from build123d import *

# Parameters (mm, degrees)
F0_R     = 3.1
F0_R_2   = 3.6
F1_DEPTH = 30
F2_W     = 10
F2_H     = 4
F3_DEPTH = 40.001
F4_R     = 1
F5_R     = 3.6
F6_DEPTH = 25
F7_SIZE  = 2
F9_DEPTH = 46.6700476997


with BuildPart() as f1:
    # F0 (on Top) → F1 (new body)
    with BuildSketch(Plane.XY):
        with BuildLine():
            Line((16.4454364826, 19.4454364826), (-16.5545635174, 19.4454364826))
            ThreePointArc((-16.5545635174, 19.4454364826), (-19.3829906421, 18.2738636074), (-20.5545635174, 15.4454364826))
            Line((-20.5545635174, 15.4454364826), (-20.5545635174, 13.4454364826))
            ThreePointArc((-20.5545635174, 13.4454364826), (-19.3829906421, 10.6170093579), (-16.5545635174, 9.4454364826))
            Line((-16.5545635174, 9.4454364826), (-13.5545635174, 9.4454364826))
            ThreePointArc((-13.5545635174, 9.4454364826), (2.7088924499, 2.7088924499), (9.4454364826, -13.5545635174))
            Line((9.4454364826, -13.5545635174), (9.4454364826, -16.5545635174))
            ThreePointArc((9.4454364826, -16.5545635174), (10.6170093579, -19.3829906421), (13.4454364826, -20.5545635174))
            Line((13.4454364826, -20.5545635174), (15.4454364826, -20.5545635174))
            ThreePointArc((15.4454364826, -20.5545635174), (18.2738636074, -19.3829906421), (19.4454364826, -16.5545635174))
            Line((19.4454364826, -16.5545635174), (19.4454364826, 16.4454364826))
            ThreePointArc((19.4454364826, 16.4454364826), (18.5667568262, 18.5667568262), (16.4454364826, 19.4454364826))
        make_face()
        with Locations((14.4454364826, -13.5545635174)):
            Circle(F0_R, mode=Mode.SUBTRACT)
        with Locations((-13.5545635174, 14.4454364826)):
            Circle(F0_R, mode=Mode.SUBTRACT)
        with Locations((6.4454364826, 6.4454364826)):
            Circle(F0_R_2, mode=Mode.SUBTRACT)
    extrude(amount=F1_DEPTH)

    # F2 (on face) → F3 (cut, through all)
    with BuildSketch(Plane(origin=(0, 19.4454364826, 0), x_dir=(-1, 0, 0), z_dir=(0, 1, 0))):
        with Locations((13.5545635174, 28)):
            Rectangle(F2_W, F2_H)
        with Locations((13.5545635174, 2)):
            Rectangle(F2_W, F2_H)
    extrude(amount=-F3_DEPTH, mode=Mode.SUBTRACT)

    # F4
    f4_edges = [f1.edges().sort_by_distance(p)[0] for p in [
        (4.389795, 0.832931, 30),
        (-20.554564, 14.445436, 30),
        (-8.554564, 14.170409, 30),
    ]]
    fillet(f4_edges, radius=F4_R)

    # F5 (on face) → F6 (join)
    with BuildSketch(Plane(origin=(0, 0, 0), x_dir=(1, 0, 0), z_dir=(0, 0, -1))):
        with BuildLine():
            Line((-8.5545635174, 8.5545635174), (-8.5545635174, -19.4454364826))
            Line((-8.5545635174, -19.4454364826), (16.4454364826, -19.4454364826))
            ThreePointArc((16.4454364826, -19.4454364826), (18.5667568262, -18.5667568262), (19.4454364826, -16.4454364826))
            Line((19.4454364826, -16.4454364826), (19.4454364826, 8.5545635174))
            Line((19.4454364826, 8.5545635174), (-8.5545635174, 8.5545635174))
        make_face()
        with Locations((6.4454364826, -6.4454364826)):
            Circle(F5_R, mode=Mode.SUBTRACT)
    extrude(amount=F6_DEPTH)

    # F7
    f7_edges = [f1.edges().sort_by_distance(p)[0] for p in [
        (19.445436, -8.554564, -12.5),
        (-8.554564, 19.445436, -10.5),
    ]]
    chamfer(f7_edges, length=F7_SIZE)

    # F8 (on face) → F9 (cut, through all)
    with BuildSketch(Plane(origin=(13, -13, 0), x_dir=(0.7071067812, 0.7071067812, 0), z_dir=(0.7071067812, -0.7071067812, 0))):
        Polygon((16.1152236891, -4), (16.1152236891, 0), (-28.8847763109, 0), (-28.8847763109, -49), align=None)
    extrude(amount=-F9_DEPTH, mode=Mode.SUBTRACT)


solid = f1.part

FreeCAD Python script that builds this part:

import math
import FreeCAD as App
import Part
import Sketcher

V = App.Vector
Q = App.Units.Quantity


def edges_at(feature, points):
    """Names of the edges that pass closest to the given points."""
    edges = feature.Shape.Edges
    near = lambda p: min(range(len(edges)), key=lambda i: edges[i].distToShape(Part.Vertex(*p))[0])
    return sorted({f"Edge{near(p) + 1}" for p in points})

doc = App.newDocument("Part")
body = doc.addObject("PartDesign::Body", "Body")

# Sketch on XY plane
sketch1 = body.newObject("Sketcher::SketchObject", "Sketch")
sketch1.AttachmentSupport = (doc.getObject("XY_Plane"), [""])
sketch1.MapMode = "FlatFace"
sketch1.addGeometry([
    Part.LineSegment(V(16.445436, 19.445436, 0), V(-16.554564, 19.445436, 0)),  # 0
    Part.ArcOfCircle(Part.Circle(V(-16.554564, 15.445436, 0), V(0, 0, 1), 4), math.radians(90), math.radians(180)),  # 1
    Part.LineSegment(V(-20.554564, 15.445436, 0), V(-20.554564, 13.445436, 0)),  # 2
    Part.ArcOfCircle(Part.Circle(V(-16.554564, 13.445436, 0), V(0, 0, 1), 4), math.radians(180), math.radians(270)),  # 3
    Part.LineSegment(V(-16.554564, 9.445436, 0), V(-13.554564, 9.445436, 0)),  # 4
    Part.ArcOfCircle(Part.Circle(V(-13.554564, -13.554564, 0), V(0, 0, 1), 23), math.radians(0), math.radians(90)),  # 5
    Part.LineSegment(V(9.445436, -13.554564, 0), V(9.445436, -16.554564, 0)),  # 6
    Part.ArcOfCircle(Part.Circle(V(13.445436, -16.554564, 0), V(0, 0, 1), 4), math.radians(180), math.radians(270)),  # 7
    Part.LineSegment(V(13.445436, -20.554564, 0), V(15.445436, -20.554564, 0)),  # 8
    Part.ArcOfCircle(Part.Circle(V(15.445436, -16.554564, 0), V(0, 0, 1), 4), math.radians(-90), math.radians(0)),  # 9
    Part.LineSegment(V(19.445436, -16.554564, 0), V(19.445436, 16.445436, 0)),  # 10
    Part.ArcOfCircle(Part.Circle(V(16.445436, 16.445436, 0), V(0, 0, 1), 3), math.radians(0), math.radians(90)),  # 11
    Part.Circle(V(14.445436, -13.554564, 0), V(0, 0, 1), 3.1),  # 12
    Part.Circle(V(-13.554564, 14.445436, 0), V(0, 0, 1), 3.1),  # 13
    Part.Circle(V(6.445436, 6.445436, 0), V(0, 0, 1), 3.6),  # 14
], False)
sketch1.addConstraint([
    Sketcher.Constraint("Tangent", 0, 2, 1, 1),
    Sketcher.Constraint("Tangent", 1, 2, 2, 1),
    Sketcher.Constraint("Tangent", 2, 2, 3, 1),
    Sketcher.Constraint("Tangent", 3, 2, 4, 1),
    Sketcher.Constraint("Tangent", 4, 2, 5, 2),
    Sketcher.Constraint("Tangent", 5, 1, 6, 1),
    Sketcher.Constraint("Tangent", 6, 2, 7, 1),
    Sketcher.Constraint("Tangent", 7, 2, 8, 1),
    Sketcher.Constraint("Tangent", 8, 2, 9, 1),
    Sketcher.Constraint("Tangent", 9, 2, 10, 1),
    Sketcher.Constraint("Tangent", 10, 2, 11, 1),
    Sketcher.Constraint("Tangent", 11, 2, 0, 1),
    Sketcher.Constraint("Horizontal", 0),
    Sketcher.Constraint("Vertical", 2),
    Sketcher.Constraint("Horizontal", 4),
    Sketcher.Constraint("Vertical", 6),
    Sketcher.Constraint("Horizontal", 8),
    Sketcher.Constraint("Vertical", 10),
    Sketcher.Constraint("Equal", 1, 3),
    Sketcher.Constraint("Equal", 3, 7),
    Sketcher.Constraint("Equal", 7, 9),
    Sketcher.Constraint("Equal", 12, 13),
    Sketcher.Constraint("Horizontal", 5, 3, 12, 3),
    Sketcher.Constraint("Vertical", 5, 3, 13, 3),
    Sketcher.Constraint("Equal", 8, 2),
    Sketcher.Constraint("Equal", 4, 6),
    Sketcher.Constraint("Radius", 1, Q("4 mm")),
    Sketcher.Constraint("Radius", 5, Q("23 mm")),
    Sketcher.Constraint("Radius", 11, Q("3 mm")),
    Sketcher.Constraint("Diameter", 12, Q("6.2 mm")),
    Sketcher.Constraint("Diameter", 14, Q("7.2 mm")),
    Sketcher.Constraint("DistanceX", 0, 2, 0, 1, Q("33 mm")),
    Sketcher.Constraint("DistanceX", 4, 1, 4, 2, Q("3 mm")),
    Sketcher.Constraint("DistanceX", 7, 3, 12, 3, Q("1 mm")),
    Sketcher.Constraint("DistanceY", 13, 3, 1, 3, Q("1 mm")),
    Sketcher.Constraint("DistanceX", 14, 3, 11, 3, Q("10 mm")),
    Sketcher.Constraint("DistanceY", 14, 3, 11, 3, Q("10 mm")),
    Sketcher.Constraint("DistanceX", 1, 3, -1, 1, Q("16.554564 mm")),
    Sketcher.Constraint("DistanceY", -1, 1, 1, 3, Q("15.445436 mm")),
])
pad1 = body.newObject("PartDesign::Pad", "Pad")
pad1.Profile = sketch1
pad1.Length = 30

# Sketch on XZ plane
sketch2 = body.newObject("Sketcher::SketchObject", "Sketch001")
sketch2.AttachmentSupport = (doc.getObject("XZ_Plane"), [""])
sketch2.MapMode = "FlatFace"
sketch2.AttachmentOffset = App.Placement(V(0, 0, -19.445436), App.Rotation())
sketch2.addGeometry([
    Part.LineSegment(V(-8.554564, 30, 0), V(-8.554564, 26, 0)),  # 0
    Part.LineSegment(V(-8.554564, 26, 0), V(-18.554564, 26, 0)),  # 1
    Part.LineSegment(V(-18.554564, 26, 0), V(-18.554564, 30, 0)),  # 2
    Part.LineSegment(V(-18.554564, 30, 0), V(-8.554564, 30, 0)),  # 3
    Part.LineSegment(V(-8.554564, 4, 0), V(-8.554564, 0, 0)),  # 4
    Part.LineSegment(V(-8.554564, 0, 0), V(-18.554564, 0, 0)),  # 5
    Part.LineSegment(V(-18.554564, 0, 0), V(-18.554564, 4, 0)),  # 6
    Part.LineSegment(V(-18.554564, 4, 0), V(-8.554564, 4, 0)),  # 7
], False)
sketch2.addConstraint([
    Sketcher.Constraint("Coincident", 0, 2, 1, 1),
    Sketcher.Constraint("Coincident", 1, 2, 2, 1),
    Sketcher.Constraint("Coincident", 2, 2, 3, 1),
    Sketcher.Constraint("Coincident", 3, 2, 0, 1),
    Sketcher.Constraint("Coincident", 4, 2, 5, 1),
    Sketcher.Constraint("Coincident", 5, 2, 6, 1),
    Sketcher.Constraint("Coincident", 6, 2, 7, 1),
    Sketcher.Constraint("Coincident", 7, 2, 4, 1),
    Sketcher.Constraint("Vertical", 0),
    Sketcher.Constraint("Horizontal", 1),
    Sketcher.Constraint("Vertical", 2),
    Sketcher.Constraint("Horizontal", 3),
    Sketcher.Constraint("Vertical", 4),
    Sketcher.Constraint("Horizontal", 5),
    Sketcher.Constraint("Vertical", 6),
    Sketcher.Constraint("Horizontal", 7),
    Sketcher.Constraint("PointOnObject", 4, 2, -1),
    Sketcher.Constraint("Vertical", 3, 2, 4, 2),
    Sketcher.Constraint("Vertical", 2, 2, 5, 2),
    Sketcher.Constraint("Equal", 2, 4),
    Sketcher.Constraint("DistanceX", 1, 2, 1, 1, Q("10 mm")),
    Sketcher.Constraint("DistanceY", 0, 2, 0, 1, Q("4 mm")),
    Sketcher.Constraint("DistanceY", -1, 1, 0, 2, Q("26 mm")),
    Sketcher.Constraint("DistanceX", 0, 2, -1, 1, Q("8.554564 mm")),
])
pocket1 = body.newObject("PartDesign::Pocket", "Pocket")
pocket1.Profile = sketch2
pocket1.Type = "ThroughAll"
pocket1.Reversed = True
doc.recompute()

fillet = body.newObject("PartDesign::Fillet", "Fillet")
fillet.Base = (pocket1, edges_at(pocket1, [(4.39, 0.833, 30), (-20.555, 14.445, 30), (-8.555, 14.17, 30)]))
fillet.Radius = 1

# Sketch on XY plane
sketch3 = body.newObject("Sketcher::SketchObject", "Sketch002")
sketch3.AttachmentSupport = (doc.getObject("XY_Plane"), [""])
sketch3.MapMode = "FlatFace"
sketch3.addGeometry([
    Part.LineSegment(V(-8.554564, -8.554564, 0), V(-8.554564, 19.445436, 0)),  # 0
    Part.LineSegment(V(-8.554564, 19.445436, 0), V(16.445436, 19.445436, 0)),  # 1
    Part.ArcOfCircle(Part.Circle(V(16.445436, 16.445436, 0), V(0, 0, 1), 3), math.radians(0), math.radians(90)),  # 2
    Part.LineSegment(V(19.445436, 16.445436, 0), V(19.445436, -8.554564, 0)),  # 3
    Part.LineSegment(V(19.445436, -8.554564, 0), V(-8.554564, -8.554564, 0)),  # 4
    Part.Circle(V(6.445436, 6.445436, 0), V(0, 0, 1), 3.6),  # 5
], False)
sketch3.addConstraint([
    Sketcher.Constraint("Coincident", 0, 2, 1, 1),
    Sketcher.Constraint("Tangent", 1, 2, 2, 2),
    Sketcher.Constraint("Tangent", 2, 1, 3, 1),
    Sketcher.Constraint("Coincident", 3, 2, 4, 1),
    Sketcher.Constraint("Coincident", 4, 2, 0, 1),
    Sketcher.Constraint("Vertical", 0),
    Sketcher.Constraint("Horizontal", 1),
    Sketcher.Constraint("Vertical", 3),
    Sketcher.Constraint("Horizontal", 4),
    Sketcher.Constraint("Equal", 4, 0),
    Sketcher.Constraint("Radius", 2, Q("3 mm")),
    Sketcher.Constraint("Diameter", 5, Q("7.2 mm")),
    Sketcher.Constraint("DistanceX", 1, 1, 1, 2, Q("25 mm")),
    Sketcher.Constraint("DistanceX", 5, 3, 2, 3, Q("10 mm")),
    Sketcher.Constraint("DistanceY", 5, 3, 2, 3, Q("10 mm")),
    Sketcher.Constraint("DistanceX", -1, 1, 2, 3, Q("16.445436 mm")),
    Sketcher.Constraint("DistanceY", -1, 1, 2, 3, Q("16.445436 mm")),
])
pad2 = body.newObject("PartDesign::Pad", "Pad001")
pad2.Profile = sketch3
pad2.Length = 25
pad2.Reversed = True
doc.recompute()

chamfer = body.newObject("PartDesign::Chamfer", "Chamfer")
chamfer.Base = (pad2, edges_at(pad2, [(19.445, -8.555, -12.5), (-8.555, 19.445, -10.5)]))
chamfer.Size = 2

# Sketch on an angled plane
sketch4 = body.newObject("Sketcher::SketchObject", "Sketch003")
sketch4.Placement = App.Placement(V(13, -13, 0), App.Rotation(V(0.707106781, 0.707106781, 0), V(0, 0, 0.999999999), V(0.707106781, -0.707106781, 0), "ZXY"))
sketch4.addGeometry([
    Part.LineSegment(V(16.115224, -4, 0), V(16.115224, 0, 0)),
    Part.LineSegment(V(16.115224, 0, 0), V(-28.884776, 0, 0)),
    Part.LineSegment(V(-28.884776, 0, 0), V(-28.884776, -49, 0)),
    Part.LineSegment(V(-28.884776, -49, 0), V(16.115224, -4, 0)),
], False)
sketch4.addConstraint([
    Sketcher.Constraint("Coincident", 0, 2, 1, 1),
    Sketcher.Constraint("Coincident", 1, 2, 2, 1),
    Sketcher.Constraint("Coincident", 2, 2, 3, 1),
    Sketcher.Constraint("Coincident", 3, 2, 0, 1),
    Sketcher.Constraint("Vertical", 0),
    Sketcher.Constraint("Horizontal", 1),
    Sketcher.Constraint("Vertical", 2),
    Sketcher.Constraint("PointOnObject", 0, 2, -1),
    Sketcher.Constraint("DistanceX", 1, 2, 1, 1, Q("45 mm")),
    Sketcher.Constraint("DistanceY", 0, 1, 0, 2, Q("4 mm")),
    Sketcher.Constraint("DistanceY", 2, 2, 2, 1, Q("49 mm")),
    Sketcher.Constraint("DistanceX", -1, 1, 0, 2, Q("16.115224 mm")),
])
pocket2 = body.newObject("PartDesign::Pocket", "Pocket001")
pocket2.Profile = sketch4
pocket2.Type = "ThroughAll"

doc.recompute()
